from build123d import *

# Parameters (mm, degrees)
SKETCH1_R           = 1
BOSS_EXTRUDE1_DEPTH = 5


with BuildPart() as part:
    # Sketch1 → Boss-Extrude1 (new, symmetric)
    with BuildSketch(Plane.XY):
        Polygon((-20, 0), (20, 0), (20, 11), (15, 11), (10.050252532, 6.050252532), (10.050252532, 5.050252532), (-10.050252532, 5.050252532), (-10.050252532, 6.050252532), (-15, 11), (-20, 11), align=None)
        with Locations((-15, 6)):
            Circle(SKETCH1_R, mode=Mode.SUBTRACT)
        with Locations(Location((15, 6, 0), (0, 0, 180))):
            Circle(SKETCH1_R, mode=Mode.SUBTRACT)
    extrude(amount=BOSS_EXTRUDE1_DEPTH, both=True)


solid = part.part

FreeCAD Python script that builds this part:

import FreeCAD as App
import Part
import Sketcher
Q = App.Units.Quantity


def add_polygon(sketch, points):
    """Adds a closed chain of lines whose ends are joined by coincident constraints."""
    first, n = sketch.GeometryCount, len(points)
    for a, b in zip(points, points[1:] + points[:1]):
        sketch.addGeometry(Part.LineSegment(App.Vector(*a, 0), App.Vector(*b, 0)), False)
    for i in range(n):
        sketch.addConstraint(Sketcher.Constraint("Coincident", first + i, 2, first + (i + 1) % n, 1))

doc = App.newDocument("Part")
body = doc.addObject("PartDesign::Body", "Body")

# Sketch on XY plane
sketch1 = doc.addObject("Sketcher::SketchObject", "Sketch")
body.addObject(sketch1)
sketch1.AttachmentSupport = (doc.XY_Plane, [""])
sketch1.MapMode = "FlatFace"
add_polygon(sketch1, [(-20, 0), (20, 0), (20, 11), (15, 11), (10.1, 6.1), (10.1, 5.1), (-10.1, 5.1), (-10.1, 6.1), (-15, 11), (-20, 11)])  # lines 0-9
sketch1.addGeometry(Part.Circle(App.Vector(-15, 6, 0), App.Vector(0, 0, 1), 1), False)  # 10
sketch1.addGeometry(Part.Circle(App.Vector(15, 6, 0), App.Vector(0, 0, 1), 1), False)  # 11
sketch1.addConstraint([
    Sketcher.Constraint("Horizontal", 0),
    Sketcher.Constraint("Vertical", 1),
    Sketcher.Constraint("Horizontal", 2),
    Sketcher.Constraint("Vertical", 4),
    Sketcher.Constraint("Horizontal", 5),
    Sketcher.Constraint("Vertical", 6),
    Sketcher.Constraint("Horizontal", 8),
    Sketcher.Constraint("Vertical", 9),
    Sketcher.Constraint("Equal", 10, 11),
    Sketcher.Constraint("Symmetric", 0, 2, 9, 2, -1, 1),
    Sketcher.Constraint("Symmetric", 10, 3, 11, 3, -2),
    Sketcher.Constraint("Symmetric", 3, 2, 6, 2, -2),
    Sketcher.Constraint("Symmetric", 2, 2, 7, 2, -2),
    Sketcher.Constraint("Perpendicular", 3, 7),
    Sketcher.Constraint("Vertical", 11, 3, 2, 2),
    Sketcher.Constraint("Diameter", 10, Q("2 mm")),
    Sketcher.Constraint("DistanceX", 0, 1, 0, 2, Q("40 mm")),
    Sketcher.Constraint("DistanceX", 2, 2, 2, 1, Q("5 mm")),
    Sketcher.Constraint("DistanceY", 1, 1, 1, 2, Q("11 mm")),
    Sketcher.Constraint("DistanceY", 4, 2, 4, 1, Q("1 mm")),
    Sketcher.Constraint("Distance", 3, Q("7 mm")),
    Sketcher.Constraint("DistanceY", -1, 1, 10, 3, Q("6 mm")),
])
pad1 = doc.addObject("PartDesign::Pad", "Pad")
body.addObject(pad1)
pad1.Profile = sketch1
pad1.Length = 10
pad1.Midplane = True

doc.recompute()
